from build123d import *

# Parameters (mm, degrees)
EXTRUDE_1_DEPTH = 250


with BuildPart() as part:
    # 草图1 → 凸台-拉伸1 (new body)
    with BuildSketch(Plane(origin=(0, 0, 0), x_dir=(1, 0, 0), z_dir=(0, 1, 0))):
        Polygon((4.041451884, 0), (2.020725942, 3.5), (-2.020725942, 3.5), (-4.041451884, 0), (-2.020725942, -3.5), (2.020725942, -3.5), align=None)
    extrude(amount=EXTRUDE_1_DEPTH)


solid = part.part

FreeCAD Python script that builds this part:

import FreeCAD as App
import Part
import Sketcher

V = App.Vector
Q = App.Units.Quantity

doc = App.newDocument("Part")
params = doc.addObject("Spreadsheet::Sheet", "Params")
for row, (alias, value) in enumerate([
    ("pad1_length", "250 mm"),
], start=1):
    params.set(f"A{row}", alias)
    params.set(f"B{row}", "=" + value)
    params.setAlias(f"B{row}", alias)

body = doc.addObject("PartDesign::Body", "Body")

sketch1 = doc.addObject("Sketcher::SketchObject", "Sketch")
body.addObject(sketch1)
sketch1.AttachmentSupport = (doc.XZ_Plane, [""])
sketch1.MapMode = "FlatFace"
sketch1.addGeometry([
    Part.LineSegment(V(4.041452, 0, 0), V(2.020726, -3.5, 0)),
    Part.LineSegment(V(2.020726, -3.5, 0), V(-2.020726, -3.5, 0)),
    Part.LineSegment(V(-2.020726, -3.5, 0), V(-4.041452, 0, 0)),
    Part.LineSegment(V(-4.041452, 0, 0), V(-2.020726, 3.5, 0)),
    Part.LineSegment(V(-2.020726, 3.5, 0), V(2.020726, 3.5, 0)),
    Part.LineSegment(V(2.020726, 3.5, 0), V(4.041452, 0, 0)),
], False)
sketch1.addConstraint([
    Sketcher.Constraint("Coincident", 0, 2, 1, 1),
    Sketcher.Constraint("Coincident", 1, 2, 2, 1),
    Sketcher.Constraint("Coincident", 2, 2, 3, 1),
    Sketcher.Constraint("Coincident", 3, 2, 4, 1),
    Sketcher.Constraint("Coincident", 4, 2, 5, 1),
    Sketcher.Constraint("Coincident", 5, 2, 0, 1),
    Sketcher.Constraint("Horizontal", 1),
    Sketcher.Constraint("Horizontal", 4),
    Sketcher.Constraint("Symmetric", 0, 2, 3, 2, -1, 1),
    Sketcher.Constraint("Symmetric", 2, 2, 5, 2, -1, 1),
    Sketcher.Constraint("PointOnObject", 2, 2, -1),
    Sketcher.Constraint("Parallel", 2, 5),
    Sketcher.Constraint("Vertical", 1, 2, 3, 2),
    Sketcher.Constraint("Angle", 0, Q("-120 deg")),
    Sketcher.Constraint("DistanceY", 1, 2, 3, 2, 7.0),
    Sketcher.Constraint("DistanceX", 1, 2, 1, 1, 4.041452),
])
pad1 = doc.addObject("PartDesign::Pad", "Pad")
body.addObject(pad1)
pad1.Profile = sketch1
pad1.setExpression("Length", "Params.pad1_length")
pad1.Reversed = True

doc.recompute()
